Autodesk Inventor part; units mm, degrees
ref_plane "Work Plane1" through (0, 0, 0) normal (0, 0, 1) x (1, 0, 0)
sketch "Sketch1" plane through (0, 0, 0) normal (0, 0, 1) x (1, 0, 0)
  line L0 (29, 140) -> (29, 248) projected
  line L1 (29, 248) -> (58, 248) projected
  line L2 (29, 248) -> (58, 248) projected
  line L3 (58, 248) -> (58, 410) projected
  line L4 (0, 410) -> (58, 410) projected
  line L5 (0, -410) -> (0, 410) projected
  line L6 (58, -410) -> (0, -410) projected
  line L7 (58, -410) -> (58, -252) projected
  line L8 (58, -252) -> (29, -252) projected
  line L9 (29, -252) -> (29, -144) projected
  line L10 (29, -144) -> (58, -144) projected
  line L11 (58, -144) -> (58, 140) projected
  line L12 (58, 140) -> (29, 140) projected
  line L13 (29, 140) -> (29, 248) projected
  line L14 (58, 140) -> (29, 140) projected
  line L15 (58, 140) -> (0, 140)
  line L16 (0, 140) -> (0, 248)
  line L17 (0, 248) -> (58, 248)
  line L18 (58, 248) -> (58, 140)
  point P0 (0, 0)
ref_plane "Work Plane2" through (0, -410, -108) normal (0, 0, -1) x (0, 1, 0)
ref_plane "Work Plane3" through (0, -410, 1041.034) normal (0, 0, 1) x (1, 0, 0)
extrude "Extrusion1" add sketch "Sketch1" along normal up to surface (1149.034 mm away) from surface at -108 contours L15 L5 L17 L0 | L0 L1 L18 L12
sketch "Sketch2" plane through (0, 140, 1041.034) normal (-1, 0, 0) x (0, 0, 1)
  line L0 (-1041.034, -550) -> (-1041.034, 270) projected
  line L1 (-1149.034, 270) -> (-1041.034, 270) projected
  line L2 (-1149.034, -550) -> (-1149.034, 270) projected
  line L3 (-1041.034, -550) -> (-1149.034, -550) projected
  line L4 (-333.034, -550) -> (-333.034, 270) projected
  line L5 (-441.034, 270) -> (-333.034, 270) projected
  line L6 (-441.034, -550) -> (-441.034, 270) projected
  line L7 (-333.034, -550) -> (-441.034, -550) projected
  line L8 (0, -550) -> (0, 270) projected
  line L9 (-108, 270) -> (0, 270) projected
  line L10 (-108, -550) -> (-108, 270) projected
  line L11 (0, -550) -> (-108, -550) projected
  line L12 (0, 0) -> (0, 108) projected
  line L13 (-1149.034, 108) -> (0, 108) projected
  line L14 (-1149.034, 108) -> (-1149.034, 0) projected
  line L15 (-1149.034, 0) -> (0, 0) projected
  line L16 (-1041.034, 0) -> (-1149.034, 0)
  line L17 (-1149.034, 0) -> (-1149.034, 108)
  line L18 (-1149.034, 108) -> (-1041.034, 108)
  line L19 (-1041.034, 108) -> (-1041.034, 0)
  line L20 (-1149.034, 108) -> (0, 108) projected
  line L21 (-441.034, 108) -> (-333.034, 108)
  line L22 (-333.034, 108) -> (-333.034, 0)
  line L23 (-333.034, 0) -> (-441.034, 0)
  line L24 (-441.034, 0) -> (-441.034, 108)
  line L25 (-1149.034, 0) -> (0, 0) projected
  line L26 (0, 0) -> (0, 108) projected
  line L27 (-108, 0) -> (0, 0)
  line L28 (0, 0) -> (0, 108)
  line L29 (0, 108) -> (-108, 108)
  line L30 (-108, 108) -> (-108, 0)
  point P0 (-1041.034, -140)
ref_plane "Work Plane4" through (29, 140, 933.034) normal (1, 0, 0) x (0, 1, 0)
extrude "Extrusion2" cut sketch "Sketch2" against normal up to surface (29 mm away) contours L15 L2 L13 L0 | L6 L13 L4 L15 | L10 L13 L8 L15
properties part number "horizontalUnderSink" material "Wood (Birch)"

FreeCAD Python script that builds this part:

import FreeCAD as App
import Part
import Sketcher
Q = App.Units.Quantity


def add_polygon(sketch, points):
    """Adds a closed chain of lines whose ends are joined by coincident constraints."""
    first, n = sketch.GeometryCount, len(points)
    for a, b in zip(points, points[1:] + points[:1]):
        sketch.addGeometry(Part.LineSegment(App.Vector(*a, 0), App.Vector(*b, 0)), False)
    for i in range(n):
        sketch.addConstraint(Sketcher.Constraint("Coincident", first + i, 2, first + (i + 1) % n, 1))

doc = App.newDocument("Part")
params = doc.addObject("Spreadsheet::Sheet", "Params")
for row, (alias, value) in enumerate([
    ("sketch1_width", "58 mm"),
    ("sketch1_height", "108 mm"),
    ("pad1_length", "1149.034 mm"),
    ("sketch2_width", "108 mm"),
    ("pocket1_length", "29 mm"),
], start=1):
    params.set(f"A{row}", alias)
    params.set(f"B{row}", "=" + value)
    params.setAlias(f"B{row}", alias)

body = doc.addObject("PartDesign::Body", "Body")

# Sketch on XY plane
sketch1 = doc.addObject("Sketcher::SketchObject", "Sketch")
body.addObject(sketch1)
sketch1.AttachmentSupport = (doc.XY_Plane, [""])
sketch1.MapMode = "FlatFace"
sketch1.AttachmentOffset = App.Placement(App.Vector(0, 0, -108), App.Rotation())
add_polygon(sketch1, [(0, 140), (58, 140), (58, 248), (0, 248)])  # lines 0-3
sketch1.addConstraint(Sketcher.Constraint("Horizontal", 0))
sketch1.addConstraint(Sketcher.Constraint("Vertical", 1))
sketch1.addConstraint(Sketcher.Constraint("Horizontal", 2))
sketch1.addConstraint(Sketcher.Constraint("Vertical", 3))
sketch1.addConstraint(Sketcher.Constraint("PointOnObject", 2, 2, -2))
sketch1.addConstraint(Sketcher.Constraint("DistanceX", 0, 1, 0, 2, Q("58 mm")))
sketch1.addConstraint(Sketcher.Constraint("DistanceY", 1, 1, 1, 2, Q("108 mm")))
sketch1.addConstraint(Sketcher.Constraint("DistanceY", -1, 1, 0, 2, Q("140 mm")))
sketch1.setExpression("Constraints[9]", "Params.sketch1_width")
sketch1.setExpression("Constraints[10]", "Params.sketch1_height")
pad1 = doc.addObject("PartDesign::Pad", "Pad")
body.addObject(pad1)
pad1.Profile = sketch1
pad1.setExpression("Length", "Params.pad1_length")

# Sketch on YZ plane
sketch2 = doc.addObject("Sketcher::SketchObject", "Sketch001")
body.addObject(sketch2)
sketch2.AttachmentSupport = (doc.YZ_Plane, [""])
sketch2.MapMode = "FlatFace"
add_polygon(sketch2, [(140, -108), (140, 0), (248, 0), (248, -108)])  # lines 0-3
add_polygon(sketch2, [(248, 600), (140, 600), (140, 708), (248, 708)])  # lines 4-7
add_polygon(sketch2, [(248, 933), (140, 933), (140, 1041), (248, 1041)])  # lines 8-11
sketch2.addConstraint(Sketcher.Constraint("Vertical", 0))
sketch2.addConstraint(Sketcher.Constraint("Horizontal", 1))
sketch2.addConstraint(Sketcher.Constraint("Vertical", 2))
sketch2.addConstraint(Sketcher.Constraint("Horizontal", 3))
sketch2.addConstraint(Sketcher.Constraint("Horizontal", 4))
sketch2.addConstraint(Sketcher.Constraint("Vertical", 5))
sketch2.addConstraint(Sketcher.Constraint("Horizontal", 6))
sketch2.addConstraint(Sketcher.Constraint("Vertical", 7))
sketch2.addConstraint(Sketcher.Constraint("Horizontal", 8))
sketch2.addConstraint(Sketcher.Constraint("Vertical", 9))
sketch2.addConstraint(Sketcher.Constraint("Horizontal", 10))
sketch2.addConstraint(Sketcher.Constraint("Vertical", 11))
sketch2.addConstraint(Sketcher.Constraint("PointOnObject", 0, 2, -1))
sketch2.addConstraint(Sketcher.Constraint("Vertical", 3, 2, 4, 2))
sketch2.addConstraint(Sketcher.Constraint("Vertical", 2, 2, 6, 2))
sketch2.addConstraint(Sketcher.Constraint("Vertical", 5, 2, 8, 2))
sketch2.addConstraint(Sketcher.Constraint("Vertical", 7, 2, 10, 2))
sketch2.addConstraint(Sketcher.Constraint("Equal", 10, 0))
sketch2.addConstraint(Sketcher.Constraint("Equal", 2, 5))
sketch2.addConstraint(Sketcher.Constraint("Equal", 7, 9))
sketch2.addConstraint(Sketcher.Constraint("DistanceX", 1, 1, 1, 2, Q("108 mm")))
sketch2.addConstraint(Sketcher.Constraint("DistanceX", -1, 1, 0, 2, Q("140 mm")))
sketch2.addConstraint(Sketcher.Constraint("DistanceY", -1, 1, 4, 2, Q("600 mm")))
sketch2.addConstraint(Sketcher.Constraint("DistanceY", -1, 1, 8, 2, Q("933.034 mm")))
sketch2.setExpression("Constraints[32]", "Params.sketch2_width")
pocket1 = doc.addObject("PartDesign::Pocket", "Pocket")
body.addObject(pocket1)
pocket1.Profile = sketch2
pocket1.setExpression("Length", "Params.pocket1_length")
pocket1.Reversed = True

doc.recompute()
